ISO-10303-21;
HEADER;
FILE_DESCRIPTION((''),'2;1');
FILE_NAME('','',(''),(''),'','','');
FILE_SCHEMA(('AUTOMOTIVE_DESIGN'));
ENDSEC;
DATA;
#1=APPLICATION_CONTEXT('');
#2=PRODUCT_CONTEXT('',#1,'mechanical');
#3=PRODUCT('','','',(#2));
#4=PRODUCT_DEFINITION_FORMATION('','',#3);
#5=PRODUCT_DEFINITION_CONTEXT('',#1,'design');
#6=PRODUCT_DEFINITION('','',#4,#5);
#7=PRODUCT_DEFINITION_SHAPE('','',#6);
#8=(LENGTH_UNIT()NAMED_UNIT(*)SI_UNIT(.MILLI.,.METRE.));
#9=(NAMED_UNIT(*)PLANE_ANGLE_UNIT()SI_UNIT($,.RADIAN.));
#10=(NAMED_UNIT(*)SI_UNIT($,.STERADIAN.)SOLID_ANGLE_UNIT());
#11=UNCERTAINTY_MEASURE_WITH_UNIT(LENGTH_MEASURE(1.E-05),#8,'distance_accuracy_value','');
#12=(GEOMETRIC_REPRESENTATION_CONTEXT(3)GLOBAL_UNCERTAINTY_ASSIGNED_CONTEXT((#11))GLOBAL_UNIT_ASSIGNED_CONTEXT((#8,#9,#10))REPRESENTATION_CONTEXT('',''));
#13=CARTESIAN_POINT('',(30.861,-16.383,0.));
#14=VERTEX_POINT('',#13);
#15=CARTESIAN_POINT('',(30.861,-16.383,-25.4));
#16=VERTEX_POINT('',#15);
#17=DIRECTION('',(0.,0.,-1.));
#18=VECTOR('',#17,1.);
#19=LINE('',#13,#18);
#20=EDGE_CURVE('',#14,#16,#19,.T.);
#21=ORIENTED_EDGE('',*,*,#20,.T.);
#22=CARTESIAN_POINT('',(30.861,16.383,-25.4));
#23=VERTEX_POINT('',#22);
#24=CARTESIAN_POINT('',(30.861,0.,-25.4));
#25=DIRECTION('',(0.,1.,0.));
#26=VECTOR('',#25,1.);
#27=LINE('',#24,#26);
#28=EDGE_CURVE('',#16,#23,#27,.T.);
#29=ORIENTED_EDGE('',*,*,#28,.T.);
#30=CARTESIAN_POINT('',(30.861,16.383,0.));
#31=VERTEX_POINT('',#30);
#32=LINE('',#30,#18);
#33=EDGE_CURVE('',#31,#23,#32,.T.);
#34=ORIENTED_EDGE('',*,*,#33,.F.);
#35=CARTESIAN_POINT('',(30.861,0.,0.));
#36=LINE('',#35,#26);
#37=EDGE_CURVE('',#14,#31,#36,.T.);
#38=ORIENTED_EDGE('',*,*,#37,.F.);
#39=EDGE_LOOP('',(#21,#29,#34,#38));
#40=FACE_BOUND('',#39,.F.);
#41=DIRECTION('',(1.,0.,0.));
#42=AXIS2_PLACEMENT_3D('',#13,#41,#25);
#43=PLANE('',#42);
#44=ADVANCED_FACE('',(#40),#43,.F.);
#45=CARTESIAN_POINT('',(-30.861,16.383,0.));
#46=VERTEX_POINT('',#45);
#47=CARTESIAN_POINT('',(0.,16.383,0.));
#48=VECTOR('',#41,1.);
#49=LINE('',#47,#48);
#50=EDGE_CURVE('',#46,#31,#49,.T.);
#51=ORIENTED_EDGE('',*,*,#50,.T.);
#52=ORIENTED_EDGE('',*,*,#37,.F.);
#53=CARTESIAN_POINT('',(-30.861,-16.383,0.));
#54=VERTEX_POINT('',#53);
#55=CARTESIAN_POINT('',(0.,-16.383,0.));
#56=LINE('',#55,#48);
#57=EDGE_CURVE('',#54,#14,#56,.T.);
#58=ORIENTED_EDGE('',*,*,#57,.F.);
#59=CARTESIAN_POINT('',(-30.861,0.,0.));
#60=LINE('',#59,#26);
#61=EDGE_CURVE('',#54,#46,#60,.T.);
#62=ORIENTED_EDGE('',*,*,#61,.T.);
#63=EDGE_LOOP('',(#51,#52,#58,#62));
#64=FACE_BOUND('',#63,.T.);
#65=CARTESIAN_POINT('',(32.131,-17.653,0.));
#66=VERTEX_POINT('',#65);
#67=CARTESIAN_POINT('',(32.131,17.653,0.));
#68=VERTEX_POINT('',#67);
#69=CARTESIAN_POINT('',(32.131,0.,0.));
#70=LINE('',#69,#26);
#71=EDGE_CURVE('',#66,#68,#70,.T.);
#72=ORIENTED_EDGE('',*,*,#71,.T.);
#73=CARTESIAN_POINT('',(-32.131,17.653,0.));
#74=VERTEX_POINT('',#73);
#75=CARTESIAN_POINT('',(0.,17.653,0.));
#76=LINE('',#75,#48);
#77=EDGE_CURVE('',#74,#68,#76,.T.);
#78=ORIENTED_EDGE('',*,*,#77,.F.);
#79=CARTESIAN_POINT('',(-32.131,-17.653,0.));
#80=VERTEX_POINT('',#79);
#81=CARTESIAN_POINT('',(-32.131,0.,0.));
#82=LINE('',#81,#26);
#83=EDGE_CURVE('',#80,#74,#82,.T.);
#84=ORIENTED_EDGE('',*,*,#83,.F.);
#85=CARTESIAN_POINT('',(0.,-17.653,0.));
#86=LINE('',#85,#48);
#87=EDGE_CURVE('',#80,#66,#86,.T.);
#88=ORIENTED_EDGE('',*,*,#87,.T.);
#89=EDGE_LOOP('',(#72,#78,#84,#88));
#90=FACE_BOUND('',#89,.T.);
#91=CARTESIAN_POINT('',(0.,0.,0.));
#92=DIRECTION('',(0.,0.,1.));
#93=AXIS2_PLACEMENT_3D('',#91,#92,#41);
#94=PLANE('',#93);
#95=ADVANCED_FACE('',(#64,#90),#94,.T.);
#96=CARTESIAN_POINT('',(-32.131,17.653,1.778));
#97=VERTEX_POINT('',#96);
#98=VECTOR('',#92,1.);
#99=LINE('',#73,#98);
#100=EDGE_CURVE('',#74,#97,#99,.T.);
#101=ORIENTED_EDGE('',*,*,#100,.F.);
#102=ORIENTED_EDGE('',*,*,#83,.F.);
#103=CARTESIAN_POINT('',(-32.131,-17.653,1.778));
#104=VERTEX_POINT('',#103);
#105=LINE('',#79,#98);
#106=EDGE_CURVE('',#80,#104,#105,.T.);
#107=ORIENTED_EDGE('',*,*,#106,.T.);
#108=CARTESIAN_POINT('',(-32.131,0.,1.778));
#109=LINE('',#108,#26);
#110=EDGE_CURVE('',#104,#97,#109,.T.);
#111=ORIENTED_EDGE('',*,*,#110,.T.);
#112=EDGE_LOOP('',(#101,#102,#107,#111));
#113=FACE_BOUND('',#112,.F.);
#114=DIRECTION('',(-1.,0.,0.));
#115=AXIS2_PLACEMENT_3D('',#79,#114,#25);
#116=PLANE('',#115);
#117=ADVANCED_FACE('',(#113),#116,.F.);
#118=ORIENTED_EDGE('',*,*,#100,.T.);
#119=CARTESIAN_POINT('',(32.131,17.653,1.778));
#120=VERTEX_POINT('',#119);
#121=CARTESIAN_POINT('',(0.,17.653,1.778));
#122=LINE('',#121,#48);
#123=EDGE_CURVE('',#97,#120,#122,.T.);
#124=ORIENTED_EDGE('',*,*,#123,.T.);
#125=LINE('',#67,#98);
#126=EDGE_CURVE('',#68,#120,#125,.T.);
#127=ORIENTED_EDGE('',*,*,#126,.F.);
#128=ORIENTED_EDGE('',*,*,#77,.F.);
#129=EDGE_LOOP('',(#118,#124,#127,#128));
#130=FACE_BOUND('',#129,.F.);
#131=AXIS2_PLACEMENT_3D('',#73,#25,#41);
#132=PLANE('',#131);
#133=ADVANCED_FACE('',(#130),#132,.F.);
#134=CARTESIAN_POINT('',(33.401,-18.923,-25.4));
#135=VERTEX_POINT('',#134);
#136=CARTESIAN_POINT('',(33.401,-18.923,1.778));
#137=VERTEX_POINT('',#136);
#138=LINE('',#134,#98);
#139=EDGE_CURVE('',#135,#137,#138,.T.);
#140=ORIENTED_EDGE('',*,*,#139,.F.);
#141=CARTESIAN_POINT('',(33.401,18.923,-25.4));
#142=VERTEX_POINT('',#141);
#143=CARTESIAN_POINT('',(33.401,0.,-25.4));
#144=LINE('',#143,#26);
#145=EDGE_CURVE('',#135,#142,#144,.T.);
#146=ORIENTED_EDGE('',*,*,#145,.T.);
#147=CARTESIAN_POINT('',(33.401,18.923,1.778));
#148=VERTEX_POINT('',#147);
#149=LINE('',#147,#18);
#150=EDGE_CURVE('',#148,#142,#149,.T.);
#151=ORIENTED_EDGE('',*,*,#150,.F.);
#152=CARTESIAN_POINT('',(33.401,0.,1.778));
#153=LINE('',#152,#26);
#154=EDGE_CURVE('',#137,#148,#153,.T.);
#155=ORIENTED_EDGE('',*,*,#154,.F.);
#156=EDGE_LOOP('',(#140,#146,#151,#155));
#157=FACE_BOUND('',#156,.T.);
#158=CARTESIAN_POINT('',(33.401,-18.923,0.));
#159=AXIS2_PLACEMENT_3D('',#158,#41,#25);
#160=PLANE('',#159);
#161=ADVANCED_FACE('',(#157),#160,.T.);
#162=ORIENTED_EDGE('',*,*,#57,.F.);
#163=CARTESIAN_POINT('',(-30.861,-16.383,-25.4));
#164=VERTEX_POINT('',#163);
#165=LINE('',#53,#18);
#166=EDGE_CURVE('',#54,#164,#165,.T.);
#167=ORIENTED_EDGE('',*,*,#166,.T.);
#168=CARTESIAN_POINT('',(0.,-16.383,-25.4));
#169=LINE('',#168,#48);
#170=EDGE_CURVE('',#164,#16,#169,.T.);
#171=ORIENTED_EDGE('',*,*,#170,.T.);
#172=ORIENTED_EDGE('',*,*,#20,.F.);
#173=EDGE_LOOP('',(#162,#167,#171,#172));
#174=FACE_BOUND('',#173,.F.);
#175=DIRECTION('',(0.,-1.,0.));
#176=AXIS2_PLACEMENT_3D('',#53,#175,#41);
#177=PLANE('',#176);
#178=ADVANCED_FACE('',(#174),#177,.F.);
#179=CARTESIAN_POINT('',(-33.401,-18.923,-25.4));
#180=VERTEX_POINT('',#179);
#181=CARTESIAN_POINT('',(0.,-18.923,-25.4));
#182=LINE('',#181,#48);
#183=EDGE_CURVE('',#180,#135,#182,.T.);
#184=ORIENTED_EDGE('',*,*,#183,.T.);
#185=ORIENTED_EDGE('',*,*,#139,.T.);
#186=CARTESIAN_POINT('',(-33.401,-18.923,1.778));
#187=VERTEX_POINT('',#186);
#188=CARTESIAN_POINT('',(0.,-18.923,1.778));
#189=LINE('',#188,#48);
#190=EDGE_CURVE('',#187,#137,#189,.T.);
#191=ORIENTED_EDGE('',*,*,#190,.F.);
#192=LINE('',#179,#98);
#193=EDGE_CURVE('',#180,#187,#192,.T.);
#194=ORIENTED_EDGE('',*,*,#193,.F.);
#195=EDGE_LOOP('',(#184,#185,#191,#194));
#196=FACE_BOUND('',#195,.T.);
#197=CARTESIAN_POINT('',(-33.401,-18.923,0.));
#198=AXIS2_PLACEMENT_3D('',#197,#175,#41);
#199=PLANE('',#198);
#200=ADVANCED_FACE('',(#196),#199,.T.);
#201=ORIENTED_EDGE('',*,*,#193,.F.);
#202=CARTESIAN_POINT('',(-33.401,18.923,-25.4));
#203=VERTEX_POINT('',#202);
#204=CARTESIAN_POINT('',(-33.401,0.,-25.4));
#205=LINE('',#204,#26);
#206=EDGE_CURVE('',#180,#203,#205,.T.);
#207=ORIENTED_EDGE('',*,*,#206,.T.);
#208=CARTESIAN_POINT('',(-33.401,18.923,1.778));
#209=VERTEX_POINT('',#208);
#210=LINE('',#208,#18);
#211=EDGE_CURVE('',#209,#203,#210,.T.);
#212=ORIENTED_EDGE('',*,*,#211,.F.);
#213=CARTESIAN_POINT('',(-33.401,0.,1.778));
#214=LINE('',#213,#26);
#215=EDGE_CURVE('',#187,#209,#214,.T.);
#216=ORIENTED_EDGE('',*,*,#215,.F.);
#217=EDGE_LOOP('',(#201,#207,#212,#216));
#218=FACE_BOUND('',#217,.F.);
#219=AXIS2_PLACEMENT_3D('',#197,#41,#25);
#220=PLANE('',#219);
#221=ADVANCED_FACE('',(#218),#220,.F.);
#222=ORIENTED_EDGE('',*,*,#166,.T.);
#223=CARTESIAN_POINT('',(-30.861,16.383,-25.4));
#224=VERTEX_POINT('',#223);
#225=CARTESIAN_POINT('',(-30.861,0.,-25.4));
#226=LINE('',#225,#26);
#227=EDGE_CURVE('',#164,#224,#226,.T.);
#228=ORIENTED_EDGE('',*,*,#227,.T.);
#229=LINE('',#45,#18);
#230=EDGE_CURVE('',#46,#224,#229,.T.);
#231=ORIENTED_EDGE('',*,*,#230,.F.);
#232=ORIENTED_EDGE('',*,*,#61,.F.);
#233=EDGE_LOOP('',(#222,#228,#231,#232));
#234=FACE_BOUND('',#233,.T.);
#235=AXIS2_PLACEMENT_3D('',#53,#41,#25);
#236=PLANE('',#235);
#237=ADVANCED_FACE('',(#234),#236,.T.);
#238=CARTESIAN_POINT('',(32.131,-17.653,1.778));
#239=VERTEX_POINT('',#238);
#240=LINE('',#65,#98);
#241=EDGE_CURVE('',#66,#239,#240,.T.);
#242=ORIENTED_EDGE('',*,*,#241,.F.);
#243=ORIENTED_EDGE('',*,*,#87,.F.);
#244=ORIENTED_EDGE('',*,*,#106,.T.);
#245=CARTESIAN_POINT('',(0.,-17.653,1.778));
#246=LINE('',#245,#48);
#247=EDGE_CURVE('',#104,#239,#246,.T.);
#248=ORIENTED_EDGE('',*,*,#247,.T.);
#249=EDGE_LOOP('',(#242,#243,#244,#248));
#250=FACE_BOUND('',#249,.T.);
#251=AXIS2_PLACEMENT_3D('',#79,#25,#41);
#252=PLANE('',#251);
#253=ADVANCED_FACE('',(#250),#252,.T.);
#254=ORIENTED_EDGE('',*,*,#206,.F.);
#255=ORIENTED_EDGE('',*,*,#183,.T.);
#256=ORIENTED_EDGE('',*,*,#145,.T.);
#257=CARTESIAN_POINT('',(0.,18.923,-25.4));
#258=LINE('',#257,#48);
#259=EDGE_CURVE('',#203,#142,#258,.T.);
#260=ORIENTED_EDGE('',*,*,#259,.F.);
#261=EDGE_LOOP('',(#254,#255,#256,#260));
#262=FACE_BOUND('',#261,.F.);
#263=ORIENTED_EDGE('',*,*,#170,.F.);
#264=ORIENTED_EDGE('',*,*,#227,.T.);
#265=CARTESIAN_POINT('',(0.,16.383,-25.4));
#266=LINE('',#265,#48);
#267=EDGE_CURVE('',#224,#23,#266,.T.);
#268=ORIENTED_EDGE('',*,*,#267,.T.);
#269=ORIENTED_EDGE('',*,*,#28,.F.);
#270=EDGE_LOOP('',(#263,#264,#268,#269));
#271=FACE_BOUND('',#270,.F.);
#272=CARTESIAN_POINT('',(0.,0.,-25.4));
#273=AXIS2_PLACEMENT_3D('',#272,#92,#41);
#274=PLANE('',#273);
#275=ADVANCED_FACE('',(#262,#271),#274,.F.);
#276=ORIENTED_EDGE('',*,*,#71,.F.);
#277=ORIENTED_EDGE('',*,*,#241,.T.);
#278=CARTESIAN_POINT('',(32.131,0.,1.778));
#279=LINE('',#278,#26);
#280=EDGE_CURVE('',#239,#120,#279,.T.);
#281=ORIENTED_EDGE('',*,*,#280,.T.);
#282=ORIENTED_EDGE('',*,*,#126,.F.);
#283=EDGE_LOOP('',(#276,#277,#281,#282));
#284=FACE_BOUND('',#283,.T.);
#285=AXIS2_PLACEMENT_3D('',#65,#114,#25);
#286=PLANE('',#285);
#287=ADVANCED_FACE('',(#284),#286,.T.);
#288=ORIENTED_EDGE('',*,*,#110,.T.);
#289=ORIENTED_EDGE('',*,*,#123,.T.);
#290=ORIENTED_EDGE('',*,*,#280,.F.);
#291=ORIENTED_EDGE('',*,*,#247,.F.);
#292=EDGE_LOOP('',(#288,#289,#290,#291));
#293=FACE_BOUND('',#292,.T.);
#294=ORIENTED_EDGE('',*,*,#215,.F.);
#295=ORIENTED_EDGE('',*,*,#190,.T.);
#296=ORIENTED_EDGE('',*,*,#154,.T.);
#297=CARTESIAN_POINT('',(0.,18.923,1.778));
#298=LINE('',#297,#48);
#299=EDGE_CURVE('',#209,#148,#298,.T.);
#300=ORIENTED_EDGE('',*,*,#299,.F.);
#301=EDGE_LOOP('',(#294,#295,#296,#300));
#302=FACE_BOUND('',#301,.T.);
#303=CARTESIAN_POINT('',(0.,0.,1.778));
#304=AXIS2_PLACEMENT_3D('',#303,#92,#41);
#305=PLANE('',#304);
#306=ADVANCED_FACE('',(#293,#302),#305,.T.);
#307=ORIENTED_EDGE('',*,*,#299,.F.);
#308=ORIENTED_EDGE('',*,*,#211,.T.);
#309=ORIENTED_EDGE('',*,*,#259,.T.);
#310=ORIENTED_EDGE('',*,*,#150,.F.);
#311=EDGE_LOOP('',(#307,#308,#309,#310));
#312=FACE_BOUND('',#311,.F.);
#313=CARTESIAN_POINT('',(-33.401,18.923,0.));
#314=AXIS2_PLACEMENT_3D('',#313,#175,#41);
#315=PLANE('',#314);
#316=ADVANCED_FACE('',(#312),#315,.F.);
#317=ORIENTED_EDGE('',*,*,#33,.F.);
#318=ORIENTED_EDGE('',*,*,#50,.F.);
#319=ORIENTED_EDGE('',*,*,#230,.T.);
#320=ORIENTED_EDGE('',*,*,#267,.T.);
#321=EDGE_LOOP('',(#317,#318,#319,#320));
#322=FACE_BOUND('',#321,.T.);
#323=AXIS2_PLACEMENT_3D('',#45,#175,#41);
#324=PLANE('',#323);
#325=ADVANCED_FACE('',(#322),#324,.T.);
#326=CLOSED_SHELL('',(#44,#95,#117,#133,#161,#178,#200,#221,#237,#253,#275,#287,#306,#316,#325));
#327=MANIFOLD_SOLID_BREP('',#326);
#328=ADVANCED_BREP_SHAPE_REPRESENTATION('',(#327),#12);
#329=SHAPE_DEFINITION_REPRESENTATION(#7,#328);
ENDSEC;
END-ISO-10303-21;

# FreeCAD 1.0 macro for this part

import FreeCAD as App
import Part
import Sketcher
Q = App.Units.Quantity

doc = App.newDocument("Part")
body = doc.addObject("PartDesign::Body", "Body")

sketch1 = doc.addObject("Sketcher::SketchObject", "Sketch")
body.addObject(sketch1)
sketch1.AttachmentSupport = (doc.XY_Plane, [""])
sketch1.MapMode = "FlatFace"
sketch1.addGeometry([
    Part.LineSegment(App.Vector(-32.131, 17.653, 0), App.Vector(-32.131, -17.653, 0)),
    Part.LineSegment(App.Vector(-32.131, -17.653, 0), App.Vector(32.131, -17.653, 0)),
    Part.LineSegment(App.Vector(32.131, -17.653, 0), App.Vector(32.131, 17.653, 0)),
    Part.LineSegment(App.Vector(32.131, 17.653, 0), App.Vector(-32.131, 17.653, 0)),
    Part.LineSegment(App.Vector(30.861, -16.383, 0), App.Vector(-30.861, -16.383, 0)),
    Part.LineSegment(App.Vector(-30.861, -16.383, 0), App.Vector(-30.861, 16.383, 0)),
    Part.LineSegment(App.Vector(-30.861, 16.383, 0), App.Vector(30.861, 16.383, 0)),
    Part.LineSegment(App.Vector(30.861, 16.383, 0), App.Vector(30.861, -16.383, 0)),
], False)
sketch1.addConstraint([
    Sketcher.Constraint("Coincident", 0, 2, 1, 1),
    Sketcher.Constraint("Coincident", 1, 2, 2, 1),
    Sketcher.Constraint("Coincident", 2, 2, 3, 1),
    Sketcher.Constraint("Coincident", 3, 2, 0, 1),
    Sketcher.Constraint("Coincident", 4, 2, 5, 1),
    Sketcher.Constraint("Coincident", 5, 2, 6, 1),
    Sketcher.Constraint("Coincident", 6, 2, 7, 1),
    Sketcher.Constraint("Coincident", 7, 2, 4, 1),
    Sketcher.Constraint("Vertical", 0),
    Sketcher.Constraint("Horizontal", 1),
    Sketcher.Constraint("Vertical", 2),
    Sketcher.Constraint("Horizontal", 3),
    Sketcher.Constraint("Horizontal", 4),
    Sketcher.Constraint("Vertical", 5),
    Sketcher.Constraint("Horizontal", 6),
    Sketcher.Constraint("Vertical", 7),
    Sketcher.Constraint("Symmetric", 0, 2, 2, 2, -1, 1),
    Sketcher.Constraint("Symmetric", 4, 2, 6, 2, -1, 1),
    Sketcher.Constraint("DistanceX", 1, 1, 1, 2, Q("2.53 in")),
    Sketcher.Constraint("DistanceX", 4, 2, 4, 1, Q("2.43 in")),
    Sketcher.Constraint("DistanceY", 0, 2, 0, 1, Q("1.39 in")),
    Sketcher.Constraint("DistanceY", 5, 1, 5, 2, Q("1.29 in")),
])
pad1 = doc.addObject("PartDesign::Pad", "Pad")
body.addObject(pad1)
pad1.Profile = sketch1
pad1.Length = Q("1 in")
pad1.Reversed = True

sketch2 = doc.addObject("Sketcher::SketchObject", "Sketch001")
body.addObject(sketch2)
sketch2.AttachmentSupport = (doc.XY_Plane, [""])
sketch2.MapMode = "FlatFace"
sketch2.addGeometry([
    Part.LineSegment(App.Vector(-33.401, 18.923, 0), App.Vector(-33.401, -18.923, 0)),
    Part.LineSegment(App.Vector(-33.401, -18.923, 0), App.Vector(33.401, -18.923, 0)),
    Part.LineSegment(App.Vector(33.401, -18.923, 0), App.Vector(33.401, 18.923, 0)),
    Part.LineSegment(App.Vector(33.401, 18.923, 0), App.Vector(-33.401, 18.923, 0)),
    Part.LineSegment(App.Vector(32.131, -17.653, 0), App.Vector(-32.131, -17.653, 0)),
    Part.LineSegment(App.Vector(-32.131, -17.653, 0), App.Vector(-32.131, 17.653, 0)),
    Part.LineSegment(App.Vector(-32.131, 17.653, 0), App.Vector(32.131, 17.653, 0)),
    Part.LineSegment(App.Vector(32.131, 17.653, 0), App.Vector(32.131, -17.653, 0)),
], False)
sketch2.addConstraint([
    Sketcher.Constraint("Coincident", 0, 2, 1, 1),
    Sketcher.Constraint("Coincident", 1, 2, 2, 1),
    Sketcher.Constraint("Coincident", 2, 2, 3, 1),
    Sketcher.Constraint("Coincident", 3, 2, 0, 1),
    Sketcher.Constraint("Coincident", 4, 2, 5, 1),
    Sketcher.Constraint("Coincident", 5, 2, 6, 1),
    Sketcher.Constraint("Coincident", 6, 2, 7, 1),
    Sketcher.Constraint("Coincident", 7, 2, 4, 1),
    Sketcher.Constraint("Vertical", 0),
    Sketcher.Constraint("Horizontal", 1),
    Sketcher.Constraint("Vertical", 2),
    Sketcher.Constraint("Horizontal", 3),
    Sketcher.Constraint("Horizontal", 4),
    Sketcher.Constraint("Vertical", 5),
    Sketcher.Constraint("Horizontal", 6),
    Sketcher.Constraint("Vertical", 7),
    Sketcher.Constraint("Symmetric", 0, 2, 2, 2, -1, 1),
    Sketcher.Constraint("Symmetric", 4, 2, 6, 2, -1, 1),
    Sketcher.Constraint("DistanceX", 1, 1, 1, 2, Q("2.63 in")),
    Sketcher.Constraint("DistanceX", 4, 2, 4, 1, Q("2.53 in")),
    Sketcher.Constraint("DistanceY", 0, 2, 0, 1, Q("1.49 in")),
    Sketcher.Constraint("DistanceY", 5, 1, 5, 2, Q("1.39 in")),
])
pad2 = doc.addObject("PartDesign::Pad", "Pad001")
body.addObject(pad2)
pad2.Profile = sketch2
pad2.Type = "TwoLengths"
pad2.Length = Q("0.07 in")
pad2.Length2 = Q("1 in")

doc.recompute()
